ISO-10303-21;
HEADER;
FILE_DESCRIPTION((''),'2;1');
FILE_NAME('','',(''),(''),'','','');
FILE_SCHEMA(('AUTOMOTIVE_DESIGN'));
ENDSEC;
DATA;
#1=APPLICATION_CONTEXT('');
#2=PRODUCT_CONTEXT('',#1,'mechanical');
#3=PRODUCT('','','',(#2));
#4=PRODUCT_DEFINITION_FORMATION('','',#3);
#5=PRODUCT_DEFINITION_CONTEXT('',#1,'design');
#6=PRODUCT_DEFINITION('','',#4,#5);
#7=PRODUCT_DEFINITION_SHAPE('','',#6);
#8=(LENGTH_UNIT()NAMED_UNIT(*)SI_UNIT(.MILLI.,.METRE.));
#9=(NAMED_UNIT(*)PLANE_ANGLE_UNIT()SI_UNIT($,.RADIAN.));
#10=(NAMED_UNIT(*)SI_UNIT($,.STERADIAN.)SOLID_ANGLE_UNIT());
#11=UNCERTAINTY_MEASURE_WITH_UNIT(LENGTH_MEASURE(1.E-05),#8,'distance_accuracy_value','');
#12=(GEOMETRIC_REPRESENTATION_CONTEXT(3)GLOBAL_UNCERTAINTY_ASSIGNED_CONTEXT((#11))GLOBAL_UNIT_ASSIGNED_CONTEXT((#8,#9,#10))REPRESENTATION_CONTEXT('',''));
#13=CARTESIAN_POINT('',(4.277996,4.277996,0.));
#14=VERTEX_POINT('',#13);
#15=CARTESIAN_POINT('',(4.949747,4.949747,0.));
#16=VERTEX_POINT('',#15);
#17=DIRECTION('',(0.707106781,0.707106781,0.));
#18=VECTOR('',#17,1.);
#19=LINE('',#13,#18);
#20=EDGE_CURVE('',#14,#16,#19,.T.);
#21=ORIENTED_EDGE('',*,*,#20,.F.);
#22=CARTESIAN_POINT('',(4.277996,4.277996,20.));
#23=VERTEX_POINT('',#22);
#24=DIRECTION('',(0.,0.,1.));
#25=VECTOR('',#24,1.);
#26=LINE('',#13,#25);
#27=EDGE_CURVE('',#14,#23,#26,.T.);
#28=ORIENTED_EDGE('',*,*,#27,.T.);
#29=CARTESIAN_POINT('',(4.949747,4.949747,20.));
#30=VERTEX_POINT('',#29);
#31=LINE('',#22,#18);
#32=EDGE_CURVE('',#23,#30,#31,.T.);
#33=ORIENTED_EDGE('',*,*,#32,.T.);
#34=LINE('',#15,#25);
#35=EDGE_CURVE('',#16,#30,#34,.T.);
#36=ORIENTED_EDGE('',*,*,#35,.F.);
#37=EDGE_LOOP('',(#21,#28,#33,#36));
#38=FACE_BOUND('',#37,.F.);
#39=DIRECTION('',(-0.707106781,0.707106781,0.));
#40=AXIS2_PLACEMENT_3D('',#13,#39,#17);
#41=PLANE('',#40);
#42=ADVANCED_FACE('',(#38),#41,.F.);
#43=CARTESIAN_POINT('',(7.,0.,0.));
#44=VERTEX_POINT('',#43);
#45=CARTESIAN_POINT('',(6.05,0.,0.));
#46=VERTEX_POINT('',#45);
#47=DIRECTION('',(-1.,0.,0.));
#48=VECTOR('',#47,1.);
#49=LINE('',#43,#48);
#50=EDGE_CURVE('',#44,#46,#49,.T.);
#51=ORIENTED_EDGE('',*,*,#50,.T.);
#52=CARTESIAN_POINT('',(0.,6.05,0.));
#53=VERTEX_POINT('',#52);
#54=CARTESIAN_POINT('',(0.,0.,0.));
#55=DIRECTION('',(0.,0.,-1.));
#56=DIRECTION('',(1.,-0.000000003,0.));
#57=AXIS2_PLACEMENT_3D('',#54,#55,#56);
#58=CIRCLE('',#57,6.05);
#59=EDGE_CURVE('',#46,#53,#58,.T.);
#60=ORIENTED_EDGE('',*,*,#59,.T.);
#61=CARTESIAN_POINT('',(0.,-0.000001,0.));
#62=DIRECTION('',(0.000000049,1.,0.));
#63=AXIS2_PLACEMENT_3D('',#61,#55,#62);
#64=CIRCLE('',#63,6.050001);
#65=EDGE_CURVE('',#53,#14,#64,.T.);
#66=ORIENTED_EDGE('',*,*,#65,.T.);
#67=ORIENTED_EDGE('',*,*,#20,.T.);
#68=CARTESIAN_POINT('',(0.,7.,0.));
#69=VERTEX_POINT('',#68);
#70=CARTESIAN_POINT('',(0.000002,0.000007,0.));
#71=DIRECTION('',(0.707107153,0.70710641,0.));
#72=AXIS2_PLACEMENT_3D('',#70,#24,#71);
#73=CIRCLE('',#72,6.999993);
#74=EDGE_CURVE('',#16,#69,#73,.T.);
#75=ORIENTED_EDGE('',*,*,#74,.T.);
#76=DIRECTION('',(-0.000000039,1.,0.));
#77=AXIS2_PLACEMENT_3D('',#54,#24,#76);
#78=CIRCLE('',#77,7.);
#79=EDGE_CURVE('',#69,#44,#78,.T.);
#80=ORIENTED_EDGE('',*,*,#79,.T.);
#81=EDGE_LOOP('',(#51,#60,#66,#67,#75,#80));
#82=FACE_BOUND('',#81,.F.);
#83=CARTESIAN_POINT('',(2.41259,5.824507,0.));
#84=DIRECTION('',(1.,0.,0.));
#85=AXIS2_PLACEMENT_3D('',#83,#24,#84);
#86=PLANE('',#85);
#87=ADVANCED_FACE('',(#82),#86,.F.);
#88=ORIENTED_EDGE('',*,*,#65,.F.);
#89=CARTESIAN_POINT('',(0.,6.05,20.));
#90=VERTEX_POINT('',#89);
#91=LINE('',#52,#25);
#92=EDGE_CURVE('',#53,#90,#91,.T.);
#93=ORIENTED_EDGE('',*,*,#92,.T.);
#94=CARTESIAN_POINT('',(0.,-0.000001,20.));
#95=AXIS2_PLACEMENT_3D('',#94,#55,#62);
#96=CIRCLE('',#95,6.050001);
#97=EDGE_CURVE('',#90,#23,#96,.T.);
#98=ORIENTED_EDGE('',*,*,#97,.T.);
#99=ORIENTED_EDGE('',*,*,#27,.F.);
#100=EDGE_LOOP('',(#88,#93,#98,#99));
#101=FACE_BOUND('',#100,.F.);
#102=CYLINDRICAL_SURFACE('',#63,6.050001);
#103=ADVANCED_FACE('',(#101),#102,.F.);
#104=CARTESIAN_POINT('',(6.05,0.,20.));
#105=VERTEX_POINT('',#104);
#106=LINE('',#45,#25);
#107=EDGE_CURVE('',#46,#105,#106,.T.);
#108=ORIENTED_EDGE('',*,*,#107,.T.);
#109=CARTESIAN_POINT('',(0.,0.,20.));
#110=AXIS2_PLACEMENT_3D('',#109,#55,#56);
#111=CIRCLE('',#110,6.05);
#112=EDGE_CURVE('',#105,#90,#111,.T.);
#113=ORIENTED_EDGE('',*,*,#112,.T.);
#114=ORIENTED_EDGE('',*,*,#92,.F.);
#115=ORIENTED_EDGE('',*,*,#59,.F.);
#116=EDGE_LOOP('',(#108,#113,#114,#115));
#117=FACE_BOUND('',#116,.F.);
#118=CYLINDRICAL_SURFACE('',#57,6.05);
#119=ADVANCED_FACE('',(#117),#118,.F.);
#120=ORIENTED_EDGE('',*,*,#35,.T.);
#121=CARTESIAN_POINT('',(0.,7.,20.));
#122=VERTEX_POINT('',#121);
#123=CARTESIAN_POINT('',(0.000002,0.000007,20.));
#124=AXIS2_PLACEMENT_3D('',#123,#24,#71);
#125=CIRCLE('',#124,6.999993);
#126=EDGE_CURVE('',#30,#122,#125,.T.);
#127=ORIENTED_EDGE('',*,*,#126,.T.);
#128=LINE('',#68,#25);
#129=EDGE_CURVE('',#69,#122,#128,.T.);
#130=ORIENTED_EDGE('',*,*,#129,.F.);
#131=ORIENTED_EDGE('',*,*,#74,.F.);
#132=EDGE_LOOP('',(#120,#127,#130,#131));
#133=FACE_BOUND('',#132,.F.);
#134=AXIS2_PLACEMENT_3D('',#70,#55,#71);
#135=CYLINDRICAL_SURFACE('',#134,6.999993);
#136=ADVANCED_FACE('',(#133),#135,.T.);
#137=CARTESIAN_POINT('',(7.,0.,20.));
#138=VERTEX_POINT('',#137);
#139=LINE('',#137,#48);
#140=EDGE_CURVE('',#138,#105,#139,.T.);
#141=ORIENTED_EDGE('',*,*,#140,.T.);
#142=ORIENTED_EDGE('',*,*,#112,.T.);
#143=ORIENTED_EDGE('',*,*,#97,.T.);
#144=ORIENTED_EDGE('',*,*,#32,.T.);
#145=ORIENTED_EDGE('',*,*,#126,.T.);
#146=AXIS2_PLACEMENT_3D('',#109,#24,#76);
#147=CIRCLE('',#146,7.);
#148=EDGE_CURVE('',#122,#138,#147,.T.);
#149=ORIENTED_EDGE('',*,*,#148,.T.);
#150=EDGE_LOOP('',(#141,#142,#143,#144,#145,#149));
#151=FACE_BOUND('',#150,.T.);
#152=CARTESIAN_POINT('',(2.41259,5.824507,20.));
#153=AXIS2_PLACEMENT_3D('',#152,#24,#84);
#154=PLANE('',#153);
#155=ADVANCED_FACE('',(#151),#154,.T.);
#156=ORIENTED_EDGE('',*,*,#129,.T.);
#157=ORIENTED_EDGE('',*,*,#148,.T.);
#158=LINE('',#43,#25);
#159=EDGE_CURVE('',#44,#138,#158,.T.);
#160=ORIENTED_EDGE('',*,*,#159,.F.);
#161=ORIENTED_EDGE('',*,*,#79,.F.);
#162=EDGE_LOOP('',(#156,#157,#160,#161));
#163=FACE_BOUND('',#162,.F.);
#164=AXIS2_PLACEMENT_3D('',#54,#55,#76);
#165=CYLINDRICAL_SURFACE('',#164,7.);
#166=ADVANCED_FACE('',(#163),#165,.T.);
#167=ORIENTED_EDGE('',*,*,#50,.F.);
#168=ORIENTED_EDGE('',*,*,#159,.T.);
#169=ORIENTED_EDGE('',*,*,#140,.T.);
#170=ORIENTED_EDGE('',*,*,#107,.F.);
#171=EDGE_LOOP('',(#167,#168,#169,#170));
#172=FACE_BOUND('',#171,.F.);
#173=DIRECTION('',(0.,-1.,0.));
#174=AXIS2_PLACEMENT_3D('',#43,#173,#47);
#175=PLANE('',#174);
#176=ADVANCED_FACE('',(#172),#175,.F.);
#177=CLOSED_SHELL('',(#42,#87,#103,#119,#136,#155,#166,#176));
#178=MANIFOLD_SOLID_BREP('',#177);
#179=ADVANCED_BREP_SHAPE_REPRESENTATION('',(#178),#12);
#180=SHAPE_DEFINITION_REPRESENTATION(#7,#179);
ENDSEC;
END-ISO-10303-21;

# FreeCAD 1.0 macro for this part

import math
import FreeCAD as App
import Part
import Sketcher

V = App.Vector
Q = App.Units.Quantity

doc = App.newDocument("Part")
params = doc.addObject("Spreadsheet::Sheet", "Params")
for row, (alias, value) in enumerate([
    ("sketch1_radius", "7 mm"),
    ("sketch1_radius2", "6.05 mm"),
    ("pad1_length", "20 mm"),
], start=1):
    params.set(f"A{row}", alias)
    params.set(f"B{row}", "=" + value)
    params.setAlias(f"B{row}", alias)

body = doc.addObject("PartDesign::Body", "Body")

# Sketch on XY plane
sketch1 = body.newObject("Sketcher::SketchObject", "Sketch")
sketch1.AttachmentSupport = (doc.getObject("XY_Plane"), [""])
sketch1.MapMode = "FlatFace"
sketch1.addGeometry(Part.ArcOfCircle(Part.Circle(V(0.000002, 0.000007, 0), V(0, 0, 1), 6.999993), math.radians(44.99997), math.radians(90.000017)), False)
sketch1.addGeometry(Part.ArcOfCircle(Part.Circle(V(0, 0, 0), V(0, 0, 1), 7), math.radians(90.000002), math.radians(359.999998)), False)
sketch1.addGeometry(Part.LineSegment(V(7, 0, 0), V(6.05, 0, 0)), False)
sketch1.addGeometry(Part.ArcOfCircle(Part.Circle(V(0, 0, 0), V(0, 0, 1), 6.05), math.radians(90), math.radians(360)), False)
sketch1.addGeometry(Part.ArcOfCircle(Part.Circle(V(0, -0.000001, 0), V(0, 0, 1), 6.050001), math.radians(45.000002), math.radians(89.999997)), False)
sketch1.addGeometry(Part.LineSegment(V(4.277996, 4.277996, 0), V(4.949747, 4.949747, 0)), False)
sketch1.addConstraint(Sketcher.Constraint("Tangent", 0, 2, 1, 1))
sketch1.addConstraint(Sketcher.Constraint("Coincident", 1, 2, 2, 1))
sketch1.addConstraint(Sketcher.Constraint("Coincident", 2, 2, 3, 2))
sketch1.addConstraint(Sketcher.Constraint("Tangent", 3, 1, 4, 2))
sketch1.addConstraint(Sketcher.Constraint("Coincident", 4, 1, 5, 1))
sketch1.addConstraint(Sketcher.Constraint("Coincident", 5, 2, 0, 1))
sketch1.addConstraint(Sketcher.Constraint("Horizontal", 2))
sketch1.addConstraint(Sketcher.Constraint("Coincident", 0, 3, -1, 1))
sketch1.addConstraint(Sketcher.Constraint("Coincident", 3, 3, -1, 1))
sketch1.addConstraint(Sketcher.Constraint("Equal", 3, 4))
sketch1.addConstraint(Sketcher.Constraint("PointOnObject", 0, 2, -2))
sketch1.addConstraint(Sketcher.Constraint("PointOnObject", 1, 2, -1))
sketch1.addConstraint(Sketcher.Constraint("PointOnObject", 3, 1, -2))
sketch1.addConstraint(Sketcher.Constraint("Radius", 1, Q("7 mm")))
sketch1.addConstraint(Sketcher.Constraint("Angle", 5, Q("45 deg")))
sketch1.addConstraint(Sketcher.Constraint("Radius", 3, Q("6.05 mm")))
sketch1.addConstraint(Sketcher.Constraint("DistanceY", -1, 1, 0, 2, Q("7 mm")))
sketch1.addConstraint(Sketcher.Constraint("DistanceY", 0, 3, 4, 1, Q("4.277989 mm")))
sketch1.setExpression("Constraints[13]", "Params.sketch1_radius")
sketch1.setExpression("Constraints[15]", "Params.sketch1_radius2")
pad1 = body.newObject("PartDesign::Pad", "Pad")
pad1.Profile = sketch1
pad1.setExpression("Length", "Params.pad1_length")

doc.recompute()
